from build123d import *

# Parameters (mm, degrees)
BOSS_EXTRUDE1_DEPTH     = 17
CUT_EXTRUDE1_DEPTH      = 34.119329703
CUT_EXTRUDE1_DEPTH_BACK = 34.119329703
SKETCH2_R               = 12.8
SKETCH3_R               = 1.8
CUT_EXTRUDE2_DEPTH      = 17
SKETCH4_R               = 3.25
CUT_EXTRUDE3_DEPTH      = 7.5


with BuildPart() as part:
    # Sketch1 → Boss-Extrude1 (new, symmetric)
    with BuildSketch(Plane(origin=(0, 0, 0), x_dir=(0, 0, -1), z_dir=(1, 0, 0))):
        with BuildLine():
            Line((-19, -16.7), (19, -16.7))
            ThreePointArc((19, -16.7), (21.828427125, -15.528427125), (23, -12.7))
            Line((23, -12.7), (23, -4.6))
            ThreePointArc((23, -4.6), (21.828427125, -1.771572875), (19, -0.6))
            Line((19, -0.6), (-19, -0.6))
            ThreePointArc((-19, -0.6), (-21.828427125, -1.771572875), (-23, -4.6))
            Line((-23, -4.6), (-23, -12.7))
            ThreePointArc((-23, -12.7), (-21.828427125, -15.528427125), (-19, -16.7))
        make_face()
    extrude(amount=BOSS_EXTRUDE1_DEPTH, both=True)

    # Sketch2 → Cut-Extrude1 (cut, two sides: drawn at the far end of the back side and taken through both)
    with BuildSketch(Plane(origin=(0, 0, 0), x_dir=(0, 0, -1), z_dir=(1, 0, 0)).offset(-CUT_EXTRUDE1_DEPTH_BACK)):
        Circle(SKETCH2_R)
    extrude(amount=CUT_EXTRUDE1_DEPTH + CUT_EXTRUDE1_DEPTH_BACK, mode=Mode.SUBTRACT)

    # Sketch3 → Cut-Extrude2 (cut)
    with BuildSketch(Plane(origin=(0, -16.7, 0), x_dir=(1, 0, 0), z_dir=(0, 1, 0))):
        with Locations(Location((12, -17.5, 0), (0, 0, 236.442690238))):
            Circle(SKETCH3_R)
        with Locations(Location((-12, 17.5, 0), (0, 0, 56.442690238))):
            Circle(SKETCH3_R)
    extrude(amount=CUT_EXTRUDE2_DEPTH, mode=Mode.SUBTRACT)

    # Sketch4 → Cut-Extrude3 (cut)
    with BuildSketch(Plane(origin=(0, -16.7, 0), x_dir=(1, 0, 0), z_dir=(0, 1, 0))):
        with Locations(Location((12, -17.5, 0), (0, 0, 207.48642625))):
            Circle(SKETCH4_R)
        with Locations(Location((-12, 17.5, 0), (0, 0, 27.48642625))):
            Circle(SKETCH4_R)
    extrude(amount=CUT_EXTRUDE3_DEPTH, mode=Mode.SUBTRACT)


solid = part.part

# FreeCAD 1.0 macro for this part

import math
import FreeCAD as App
import Part
import Sketcher

V = App.Vector
Q = App.Units.Quantity

doc = App.newDocument("Part")
body = doc.addObject("PartDesign::Body", "Body")

# Sketch on YZ plane
sketch1 = body.newObject("Sketcher::SketchObject", "Sketch")
sketch1.AttachmentSupport = (doc.getObject("YZ_Plane"), [""])
sketch1.MapMode = "FlatFace"
sketch1.addGeometry(Part.LineSegment(V(-16.7, 19, 0), V(-16.7, -19, 0)), False)
sketch1.addGeometry(Part.ArcOfCircle(Part.Circle(V(-12.7, -19, 0), V(0, 0, 1), 4), math.radians(180), math.radians(270)), False)
sketch1.addGeometry(Part.LineSegment(V(-12.7, -23, 0), V(-4.6, -23, 0)), False)
sketch1.addGeometry(Part.ArcOfCircle(Part.Circle(V(-4.6, -19, 0), V(0, 0, 1), 4), math.radians(-90), math.radians(0)), False)
sketch1.addGeometry(Part.LineSegment(V(-0.6, -19, 0), V(-0.6, 19, 0)), False)
sketch1.addGeometry(Part.ArcOfCircle(Part.Circle(V(-4.6, 19, 0), V(0, 0, 1), 4), math.radians(0), math.radians(90)), False)
sketch1.addGeometry(Part.LineSegment(V(-4.6, 23, 0), V(-12.7, 23, 0)), False)
sketch1.addGeometry(Part.ArcOfCircle(Part.Circle(V(-12.7, 19, 0), V(0, 0, 1), 4), math.radians(90), math.radians(180)), False)
sketch1.addConstraint(Sketcher.Constraint("Tangent", 0, 2, 1, 1))
sketch1.addConstraint(Sketcher.Constraint("Tangent", 1, 2, 2, 1))
sketch1.addConstraint(Sketcher.Constraint("Tangent", 2, 2, 3, 1))
sketch1.addConstraint(Sketcher.Constraint("Tangent", 3, 2, 4, 1))
sketch1.addConstraint(Sketcher.Constraint("Tangent", 4, 2, 5, 1))
sketch1.addConstraint(Sketcher.Constraint("Tangent", 5, 2, 6, 1))
sketch1.addConstraint(Sketcher.Constraint("Tangent", 6, 2, 7, 1))
sketch1.addConstraint(Sketcher.Constraint("Tangent", 7, 2, 0, 1))
sketch1.addConstraint(Sketcher.Constraint("Vertical", 0))
sketch1.addConstraint(Sketcher.Constraint("Horizontal", 2))
sketch1.addConstraint(Sketcher.Constraint("Vertical", 4))
sketch1.addConstraint(Sketcher.Constraint("Horizontal", 6))
sketch1.addConstraint(Sketcher.Constraint("Equal", 1, 3))
sketch1.addConstraint(Sketcher.Constraint("Equal", 3, 5))
sketch1.addConstraint(Sketcher.Constraint("Equal", 5, 7))
sketch1.addConstraint(Sketcher.Constraint("Radius", 1, Q("4 mm")))
sketch1.addConstraint(Sketcher.Constraint("DistanceY", 0, 2, 0, 1, Q("38 mm")))
sketch1.addConstraint(Sketcher.Constraint("DistanceX", 2, 1, 2, 2, Q("8.1 mm")))
sketch1.addConstraint(Sketcher.Constraint("DistanceY", 1, 3, -1, 1, Q("19 mm")))
sketch1.addConstraint(Sketcher.Constraint("DistanceX", 1, 3, -1, 1, Q("12.7 mm")))
pad1 = body.newObject("PartDesign::Pad", "Pad")
pad1.Profile = sketch1
pad1.Length = 34
pad1.Midplane = True

# Sketch on YZ plane
sketch2 = body.newObject("Sketcher::SketchObject", "Sketch001")
sketch2.AttachmentSupport = (doc.getObject("YZ_Plane"), [""])
sketch2.MapMode = "FlatFace"
sketch2.addGeometry(Part.Circle(V(0, 0, 0), V(0, 0, 1), 13), False)
sketch2.addConstraint(Sketcher.Constraint("Coincident", 0, 3, -1, 1))
sketch2.addConstraint(Sketcher.Constraint("Diameter", 0, Q("25.6 mm")))
pocket1 = body.newObject("PartDesign::Pocket", "Pocket")
pocket1.Profile = sketch2
pocket1.Type = "ThroughAll"
pocket1.Midplane = True

# Sketch on XZ plane
sketch3 = body.newObject("Sketcher::SketchObject", "Sketch002")
sketch3.AttachmentSupport = (doc.getObject("XZ_Plane"), [""])
sketch3.MapMode = "FlatFace"
sketch3.AttachmentOffset = App.Placement(V(0, 0, 16.7), App.Rotation())
sketch3.addGeometry(Part.Circle(V(12, 17.5, 0), V(0, 0, 1), 1.8), False)
sketch3.addGeometry(Part.Circle(V(-12, -17.5, 0), V(0, 0, 1), 1.8), False)
sketch3.addConstraint(Sketcher.Constraint("Equal", 0, 1))
sketch3.addConstraint(Sketcher.Constraint("Symmetric", 0, 3, 1, 3, -1, 1))
sketch3.addConstraint(Sketcher.Constraint("Diameter", 0, Q("3.6 mm")))
sketch3.addConstraint(Sketcher.Constraint("DistanceX", -1, 1, 0, 3, Q("12 mm")))
sketch3.addConstraint(Sketcher.Constraint("DistanceY", 1, 3, 0, 3, Q("35 mm")))
pocket2 = body.newObject("PartDesign::Pocket", "Pocket001")
pocket2.Profile = sketch3
pocket2.Length = 17

# Sketch on XZ plane
sketch4 = body.newObject("Sketcher::SketchObject", "Sketch003")
sketch4.AttachmentSupport = (doc.getObject("XZ_Plane"), [""])
sketch4.MapMode = "FlatFace"
sketch4.AttachmentOffset = App.Placement(V(0, 0, 16.7), App.Rotation())
sketch4.addGeometry(Part.Circle(V(12, 17.5, 0), V(0, 0, 1), 3.2), False)
sketch4.addGeometry(Part.Circle(V(-12, -17.5, 0), V(0, 0, 1), 3.2), False)
sketch4.addConstraint(Sketcher.Constraint("Equal", 0, 1))
sketch4.addConstraint(Sketcher.Constraint("Symmetric", 0, 3, 1, 3, -1, 1))
sketch4.addConstraint(Sketcher.Constraint("Diameter", 0, Q("6.5 mm")))
sketch4.addConstraint(Sketcher.Constraint("DistanceX", -1, 1, 0, 3, Q("12 mm")))
sketch4.addConstraint(Sketcher.Constraint("DistanceY", 1, 3, 0, 3, Q("35 mm")))
pocket3 = body.newObject("PartDesign::Pocket", "Pocket002")
pocket3.Profile = sketch4
pocket3.Length = 7.5

doc.recompute()
